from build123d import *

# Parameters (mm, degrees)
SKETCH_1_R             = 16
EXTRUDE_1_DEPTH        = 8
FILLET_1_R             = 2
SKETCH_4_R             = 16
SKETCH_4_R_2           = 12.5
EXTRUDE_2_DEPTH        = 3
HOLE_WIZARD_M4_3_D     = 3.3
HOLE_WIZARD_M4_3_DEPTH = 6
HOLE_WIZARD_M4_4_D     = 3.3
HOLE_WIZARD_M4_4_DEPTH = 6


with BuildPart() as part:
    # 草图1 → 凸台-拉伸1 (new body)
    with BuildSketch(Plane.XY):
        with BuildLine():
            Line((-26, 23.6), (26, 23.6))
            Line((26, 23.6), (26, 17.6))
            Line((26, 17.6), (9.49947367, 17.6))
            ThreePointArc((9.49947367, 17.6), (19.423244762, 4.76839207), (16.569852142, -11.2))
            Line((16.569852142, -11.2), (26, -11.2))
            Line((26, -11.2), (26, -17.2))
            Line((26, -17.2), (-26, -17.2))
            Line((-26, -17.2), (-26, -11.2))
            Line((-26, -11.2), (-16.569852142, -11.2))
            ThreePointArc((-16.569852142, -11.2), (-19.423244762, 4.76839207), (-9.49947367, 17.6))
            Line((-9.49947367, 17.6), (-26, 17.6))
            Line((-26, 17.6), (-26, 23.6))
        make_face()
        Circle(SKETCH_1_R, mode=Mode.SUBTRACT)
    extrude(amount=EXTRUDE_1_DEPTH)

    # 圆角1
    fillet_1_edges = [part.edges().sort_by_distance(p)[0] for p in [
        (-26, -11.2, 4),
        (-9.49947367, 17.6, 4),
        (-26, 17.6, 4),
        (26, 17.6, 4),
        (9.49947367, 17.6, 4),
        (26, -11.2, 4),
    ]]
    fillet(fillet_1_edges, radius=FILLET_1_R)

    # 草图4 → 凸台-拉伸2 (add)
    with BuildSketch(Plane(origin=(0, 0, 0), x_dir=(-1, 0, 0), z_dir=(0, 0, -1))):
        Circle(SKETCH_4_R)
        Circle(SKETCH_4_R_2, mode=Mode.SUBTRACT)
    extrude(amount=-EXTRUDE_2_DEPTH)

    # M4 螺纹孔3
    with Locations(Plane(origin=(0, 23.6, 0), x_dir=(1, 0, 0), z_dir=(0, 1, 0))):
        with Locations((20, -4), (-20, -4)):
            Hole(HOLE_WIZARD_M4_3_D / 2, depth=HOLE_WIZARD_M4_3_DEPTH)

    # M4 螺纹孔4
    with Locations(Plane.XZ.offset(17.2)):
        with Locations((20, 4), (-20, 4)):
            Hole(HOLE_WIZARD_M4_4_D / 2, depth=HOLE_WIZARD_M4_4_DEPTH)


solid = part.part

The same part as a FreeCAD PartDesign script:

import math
import FreeCAD as App
import Part
import Sketcher

V = App.Vector
Q = App.Units.Quantity


def edges_at(feature, points):
    """Names of the edges that pass closest to the given points."""
    edges = feature.Shape.Edges
    near = lambda p: min(range(len(edges)), key=lambda i: edges[i].distToShape(Part.Vertex(*p))[0])
    return sorted({f"Edge{near(p) + 1}" for p in points})

doc = App.newDocument("Part")
body = doc.addObject("PartDesign::Body", "Body")

sketch1 = body.newObject("Sketcher::SketchObject", "Sketch")
sketch1.AttachmentSupport = (doc.getObject("XY_Plane"), [""])
sketch1.MapMode = "FlatFace"
sketch1.addGeometry([
    Part.LineSegment(V(26, 24, 0), V(-26, 24, 0)),
    Part.LineSegment(V(-26, 24, 0), V(-26, 18, 0)),
    Part.LineSegment(V(-26, 18, 0), V(-9, 18, 0)),
    Part.ArcOfCircle(Part.Circle(V(0, 0, 0), V(0, 0, 1), 20), math.radians(118), math.radians(214)),
    Part.LineSegment(V(-17, -11, 0), V(-26, -11, 0)),
    Part.LineSegment(V(-26, -11, 0), V(-26, -17, 0)),
    Part.LineSegment(V(-26, -17, 0), V(26, -17, 0)),
    Part.LineSegment(V(26, -17, 0), V(26, -11, 0)),
    Part.LineSegment(V(26, -11, 0), V(17, -11, 0)),
    Part.ArcOfCircle(Part.Circle(V(0, 0, 0), V(0, 0, 1), 20), math.radians(-34), math.radians(62)),
    Part.LineSegment(V(9, 18, 0), V(26, 18, 0)),
    Part.LineSegment(V(26, 18, 0), V(26, 24, 0)),
    Part.Circle(V(0, 0, 0), V(0, 0, 1), 16),
], False)
sketch1.addConstraint([
    Sketcher.Constraint("Coincident", 0, 2, 1, 1),
    Sketcher.Constraint("Coincident", 1, 2, 2, 1),
    Sketcher.Constraint("Coincident", 2, 2, 3, 1),
    Sketcher.Constraint("Coincident", 3, 2, 4, 1),
    Sketcher.Constraint("Coincident", 4, 2, 5, 1),
    Sketcher.Constraint("Coincident", 5, 2, 6, 1),
    Sketcher.Constraint("Coincident", 6, 2, 7, 1),
    Sketcher.Constraint("Coincident", 7, 2, 8, 1),
    Sketcher.Constraint("Coincident", 8, 2, 9, 1),
    Sketcher.Constraint("Coincident", 9, 2, 10, 1),
    Sketcher.Constraint("Coincident", 10, 2, 11, 1),
    Sketcher.Constraint("Coincident", 11, 2, 0, 1),
    Sketcher.Constraint("Horizontal", 0),
    Sketcher.Constraint("Vertical", 1),
    Sketcher.Constraint("Horizontal", 2),
    Sketcher.Constraint("Horizontal", 4),
    Sketcher.Constraint("Vertical", 5),
    Sketcher.Constraint("Horizontal", 6),
    Sketcher.Constraint("Vertical", 7),
    Sketcher.Constraint("Horizontal", 8),
    Sketcher.Constraint("Horizontal", 10),
    Sketcher.Constraint("Vertical", 11),
    Sketcher.Constraint("Coincident", 3, 3, -1, 1),
    Sketcher.Constraint("Coincident", 9, 3, -1, 1),
    Sketcher.Constraint("Coincident", 12, 3, -1, 1),
    Sketcher.Constraint("Equal", 3, 9),
    Sketcher.Constraint("Symmetric", 4, 2, 7, 2, -2),
    Sketcher.Constraint("Symmetric", 1, 2, 10, 2, -2),
    Sketcher.Constraint("Vertical", 1, 2, 4, 2),
    Sketcher.Constraint("Equal", 1, 5),
    Sketcher.Constraint("Diameter", 12, Q("32 mm")),
    Sketcher.Constraint("Radius", 3, Q("20 mm")),
    Sketcher.Constraint("DistanceX", 0, 2, 0, 1, Q("52 mm")),
    Sketcher.Constraint("DistanceY", 1, 2, 1, 1, Q("6 mm")),
    Sketcher.Constraint("DistanceY", -1, 1, 0, 2, Q("23.6 mm")),
    Sketcher.Constraint("DistanceY", 3, 2, -1, 1, Q("11.2 mm")),
])
pad1 = body.newObject("PartDesign::Pad", "Pad")
pad1.Profile = sketch1
pad1.Length = 8
doc.recompute()

fillet = body.newObject("PartDesign::Fillet", "Fillet")
fillet.Base = (pad1, edges_at(pad1, [
    (-26, -11.2, 4),
    (-9.499, 17.6, 4),
    (-26, 17.6, 4),
    (26, 17.6, 4),
    (9.499, 17.6, 4),
    (26, -11.2, 4),
]))
fillet.Radius = 2

sketch2 = body.newObject("Sketcher::SketchObject", "Sketch001")
sketch2.AttachmentSupport = (doc.getObject("XY_Plane"), [""])
sketch2.MapMode = "FlatFace"
sketch2.addGeometry([
    Part.Circle(V(0, 0, 0), V(0, 0, 1), 16),
    Part.Circle(V(0, 0, 0), V(0, 0, 1), 12),
], False)
sketch2.addConstraint([
    Sketcher.Constraint("Coincident", 0, 3, -1, 1),
    Sketcher.Constraint("Coincident", 1, 3, -1, 1),
    Sketcher.Constraint("Diameter", 0, Q("32 mm")),
    Sketcher.Constraint("Diameter", 1, Q("25 mm")),
])
pad2 = body.newObject("PartDesign::Pad", "Pad001")
pad2.Profile = sketch2
pad2.Length = 3

sketch3 = body.newObject("Sketcher::SketchObject", "Sketch002")
sketch3.AttachmentSupport = (doc.getObject("XZ_Plane"), [""])
sketch3.MapMode = "FlatFace"
sketch3.AttachmentOffset = App.Placement(V(0, 0, -23.6), App.Rotation())
sketch3.addGeometry([
    Part.Circle(V(20, 4, 0), V(0, 0, 1), 1.6),
    Part.Circle(V(-20, 4, 0), V(0, 0, 1), 1.6),
], False)
sketch3.addConstraint([
    Sketcher.Constraint("Equal", 0, 1),
    Sketcher.Constraint("Symmetric", 0, 3, 1, 3, -2),
    Sketcher.Constraint("Diameter", 0, Q("3.3 mm")),
    Sketcher.Constraint("DistanceX", -1, 1, 0, 3, Q("20 mm")),
    Sketcher.Constraint("DistanceY", -1, 1, 0, 3, Q("4 mm")),
])
doc.recompute()
hole = body.newObject("PartDesign::Hole", "Hole")
hole.Profile = sketch3
hole.ThreadType = "None"
hole.Diameter = 3.3
hole.DepthType = "Dimension"
hole.Depth = 6
hole.DrillPoint = "Flat"
hole.Reversed = True

sketch4 = body.newObject("Sketcher::SketchObject", "Sketch003")
sketch4.AttachmentSupport = (doc.getObject("XZ_Plane"), [""])
sketch4.MapMode = "FlatFace"
sketch4.AttachmentOffset = App.Placement(V(0, 0, 17.2), App.Rotation())
sketch4.addGeometry([
    Part.Circle(V(20, 4, 0), V(0, 0, 1), 1.6),
    Part.Circle(V(-20, 4, 0), V(0, 0, 1), 1.6),
], False)
sketch4.addConstraint([
    Sketcher.Constraint("Equal", 0, 1),
    Sketcher.Constraint("Symmetric", 0, 3, 1, 3, -2),
    Sketcher.Constraint("Diameter", 0, Q("3.3 mm")),
    Sketcher.Constraint("DistanceX", -1, 1, 0, 3, Q("20 mm")),
    Sketcher.Constraint("DistanceY", -1, 1, 0, 3, Q("4 mm")),
])
doc.recompute()
hole2 = body.newObject("PartDesign::Hole", "Hole001")
hole2.Profile = sketch4
hole2.ThreadType = "None"
hole2.Diameter = 3.3
hole2.DepthType = "Dimension"
hole2.Depth = 6
hole2.DrillPoint = "Flat"

doc.recompute()
